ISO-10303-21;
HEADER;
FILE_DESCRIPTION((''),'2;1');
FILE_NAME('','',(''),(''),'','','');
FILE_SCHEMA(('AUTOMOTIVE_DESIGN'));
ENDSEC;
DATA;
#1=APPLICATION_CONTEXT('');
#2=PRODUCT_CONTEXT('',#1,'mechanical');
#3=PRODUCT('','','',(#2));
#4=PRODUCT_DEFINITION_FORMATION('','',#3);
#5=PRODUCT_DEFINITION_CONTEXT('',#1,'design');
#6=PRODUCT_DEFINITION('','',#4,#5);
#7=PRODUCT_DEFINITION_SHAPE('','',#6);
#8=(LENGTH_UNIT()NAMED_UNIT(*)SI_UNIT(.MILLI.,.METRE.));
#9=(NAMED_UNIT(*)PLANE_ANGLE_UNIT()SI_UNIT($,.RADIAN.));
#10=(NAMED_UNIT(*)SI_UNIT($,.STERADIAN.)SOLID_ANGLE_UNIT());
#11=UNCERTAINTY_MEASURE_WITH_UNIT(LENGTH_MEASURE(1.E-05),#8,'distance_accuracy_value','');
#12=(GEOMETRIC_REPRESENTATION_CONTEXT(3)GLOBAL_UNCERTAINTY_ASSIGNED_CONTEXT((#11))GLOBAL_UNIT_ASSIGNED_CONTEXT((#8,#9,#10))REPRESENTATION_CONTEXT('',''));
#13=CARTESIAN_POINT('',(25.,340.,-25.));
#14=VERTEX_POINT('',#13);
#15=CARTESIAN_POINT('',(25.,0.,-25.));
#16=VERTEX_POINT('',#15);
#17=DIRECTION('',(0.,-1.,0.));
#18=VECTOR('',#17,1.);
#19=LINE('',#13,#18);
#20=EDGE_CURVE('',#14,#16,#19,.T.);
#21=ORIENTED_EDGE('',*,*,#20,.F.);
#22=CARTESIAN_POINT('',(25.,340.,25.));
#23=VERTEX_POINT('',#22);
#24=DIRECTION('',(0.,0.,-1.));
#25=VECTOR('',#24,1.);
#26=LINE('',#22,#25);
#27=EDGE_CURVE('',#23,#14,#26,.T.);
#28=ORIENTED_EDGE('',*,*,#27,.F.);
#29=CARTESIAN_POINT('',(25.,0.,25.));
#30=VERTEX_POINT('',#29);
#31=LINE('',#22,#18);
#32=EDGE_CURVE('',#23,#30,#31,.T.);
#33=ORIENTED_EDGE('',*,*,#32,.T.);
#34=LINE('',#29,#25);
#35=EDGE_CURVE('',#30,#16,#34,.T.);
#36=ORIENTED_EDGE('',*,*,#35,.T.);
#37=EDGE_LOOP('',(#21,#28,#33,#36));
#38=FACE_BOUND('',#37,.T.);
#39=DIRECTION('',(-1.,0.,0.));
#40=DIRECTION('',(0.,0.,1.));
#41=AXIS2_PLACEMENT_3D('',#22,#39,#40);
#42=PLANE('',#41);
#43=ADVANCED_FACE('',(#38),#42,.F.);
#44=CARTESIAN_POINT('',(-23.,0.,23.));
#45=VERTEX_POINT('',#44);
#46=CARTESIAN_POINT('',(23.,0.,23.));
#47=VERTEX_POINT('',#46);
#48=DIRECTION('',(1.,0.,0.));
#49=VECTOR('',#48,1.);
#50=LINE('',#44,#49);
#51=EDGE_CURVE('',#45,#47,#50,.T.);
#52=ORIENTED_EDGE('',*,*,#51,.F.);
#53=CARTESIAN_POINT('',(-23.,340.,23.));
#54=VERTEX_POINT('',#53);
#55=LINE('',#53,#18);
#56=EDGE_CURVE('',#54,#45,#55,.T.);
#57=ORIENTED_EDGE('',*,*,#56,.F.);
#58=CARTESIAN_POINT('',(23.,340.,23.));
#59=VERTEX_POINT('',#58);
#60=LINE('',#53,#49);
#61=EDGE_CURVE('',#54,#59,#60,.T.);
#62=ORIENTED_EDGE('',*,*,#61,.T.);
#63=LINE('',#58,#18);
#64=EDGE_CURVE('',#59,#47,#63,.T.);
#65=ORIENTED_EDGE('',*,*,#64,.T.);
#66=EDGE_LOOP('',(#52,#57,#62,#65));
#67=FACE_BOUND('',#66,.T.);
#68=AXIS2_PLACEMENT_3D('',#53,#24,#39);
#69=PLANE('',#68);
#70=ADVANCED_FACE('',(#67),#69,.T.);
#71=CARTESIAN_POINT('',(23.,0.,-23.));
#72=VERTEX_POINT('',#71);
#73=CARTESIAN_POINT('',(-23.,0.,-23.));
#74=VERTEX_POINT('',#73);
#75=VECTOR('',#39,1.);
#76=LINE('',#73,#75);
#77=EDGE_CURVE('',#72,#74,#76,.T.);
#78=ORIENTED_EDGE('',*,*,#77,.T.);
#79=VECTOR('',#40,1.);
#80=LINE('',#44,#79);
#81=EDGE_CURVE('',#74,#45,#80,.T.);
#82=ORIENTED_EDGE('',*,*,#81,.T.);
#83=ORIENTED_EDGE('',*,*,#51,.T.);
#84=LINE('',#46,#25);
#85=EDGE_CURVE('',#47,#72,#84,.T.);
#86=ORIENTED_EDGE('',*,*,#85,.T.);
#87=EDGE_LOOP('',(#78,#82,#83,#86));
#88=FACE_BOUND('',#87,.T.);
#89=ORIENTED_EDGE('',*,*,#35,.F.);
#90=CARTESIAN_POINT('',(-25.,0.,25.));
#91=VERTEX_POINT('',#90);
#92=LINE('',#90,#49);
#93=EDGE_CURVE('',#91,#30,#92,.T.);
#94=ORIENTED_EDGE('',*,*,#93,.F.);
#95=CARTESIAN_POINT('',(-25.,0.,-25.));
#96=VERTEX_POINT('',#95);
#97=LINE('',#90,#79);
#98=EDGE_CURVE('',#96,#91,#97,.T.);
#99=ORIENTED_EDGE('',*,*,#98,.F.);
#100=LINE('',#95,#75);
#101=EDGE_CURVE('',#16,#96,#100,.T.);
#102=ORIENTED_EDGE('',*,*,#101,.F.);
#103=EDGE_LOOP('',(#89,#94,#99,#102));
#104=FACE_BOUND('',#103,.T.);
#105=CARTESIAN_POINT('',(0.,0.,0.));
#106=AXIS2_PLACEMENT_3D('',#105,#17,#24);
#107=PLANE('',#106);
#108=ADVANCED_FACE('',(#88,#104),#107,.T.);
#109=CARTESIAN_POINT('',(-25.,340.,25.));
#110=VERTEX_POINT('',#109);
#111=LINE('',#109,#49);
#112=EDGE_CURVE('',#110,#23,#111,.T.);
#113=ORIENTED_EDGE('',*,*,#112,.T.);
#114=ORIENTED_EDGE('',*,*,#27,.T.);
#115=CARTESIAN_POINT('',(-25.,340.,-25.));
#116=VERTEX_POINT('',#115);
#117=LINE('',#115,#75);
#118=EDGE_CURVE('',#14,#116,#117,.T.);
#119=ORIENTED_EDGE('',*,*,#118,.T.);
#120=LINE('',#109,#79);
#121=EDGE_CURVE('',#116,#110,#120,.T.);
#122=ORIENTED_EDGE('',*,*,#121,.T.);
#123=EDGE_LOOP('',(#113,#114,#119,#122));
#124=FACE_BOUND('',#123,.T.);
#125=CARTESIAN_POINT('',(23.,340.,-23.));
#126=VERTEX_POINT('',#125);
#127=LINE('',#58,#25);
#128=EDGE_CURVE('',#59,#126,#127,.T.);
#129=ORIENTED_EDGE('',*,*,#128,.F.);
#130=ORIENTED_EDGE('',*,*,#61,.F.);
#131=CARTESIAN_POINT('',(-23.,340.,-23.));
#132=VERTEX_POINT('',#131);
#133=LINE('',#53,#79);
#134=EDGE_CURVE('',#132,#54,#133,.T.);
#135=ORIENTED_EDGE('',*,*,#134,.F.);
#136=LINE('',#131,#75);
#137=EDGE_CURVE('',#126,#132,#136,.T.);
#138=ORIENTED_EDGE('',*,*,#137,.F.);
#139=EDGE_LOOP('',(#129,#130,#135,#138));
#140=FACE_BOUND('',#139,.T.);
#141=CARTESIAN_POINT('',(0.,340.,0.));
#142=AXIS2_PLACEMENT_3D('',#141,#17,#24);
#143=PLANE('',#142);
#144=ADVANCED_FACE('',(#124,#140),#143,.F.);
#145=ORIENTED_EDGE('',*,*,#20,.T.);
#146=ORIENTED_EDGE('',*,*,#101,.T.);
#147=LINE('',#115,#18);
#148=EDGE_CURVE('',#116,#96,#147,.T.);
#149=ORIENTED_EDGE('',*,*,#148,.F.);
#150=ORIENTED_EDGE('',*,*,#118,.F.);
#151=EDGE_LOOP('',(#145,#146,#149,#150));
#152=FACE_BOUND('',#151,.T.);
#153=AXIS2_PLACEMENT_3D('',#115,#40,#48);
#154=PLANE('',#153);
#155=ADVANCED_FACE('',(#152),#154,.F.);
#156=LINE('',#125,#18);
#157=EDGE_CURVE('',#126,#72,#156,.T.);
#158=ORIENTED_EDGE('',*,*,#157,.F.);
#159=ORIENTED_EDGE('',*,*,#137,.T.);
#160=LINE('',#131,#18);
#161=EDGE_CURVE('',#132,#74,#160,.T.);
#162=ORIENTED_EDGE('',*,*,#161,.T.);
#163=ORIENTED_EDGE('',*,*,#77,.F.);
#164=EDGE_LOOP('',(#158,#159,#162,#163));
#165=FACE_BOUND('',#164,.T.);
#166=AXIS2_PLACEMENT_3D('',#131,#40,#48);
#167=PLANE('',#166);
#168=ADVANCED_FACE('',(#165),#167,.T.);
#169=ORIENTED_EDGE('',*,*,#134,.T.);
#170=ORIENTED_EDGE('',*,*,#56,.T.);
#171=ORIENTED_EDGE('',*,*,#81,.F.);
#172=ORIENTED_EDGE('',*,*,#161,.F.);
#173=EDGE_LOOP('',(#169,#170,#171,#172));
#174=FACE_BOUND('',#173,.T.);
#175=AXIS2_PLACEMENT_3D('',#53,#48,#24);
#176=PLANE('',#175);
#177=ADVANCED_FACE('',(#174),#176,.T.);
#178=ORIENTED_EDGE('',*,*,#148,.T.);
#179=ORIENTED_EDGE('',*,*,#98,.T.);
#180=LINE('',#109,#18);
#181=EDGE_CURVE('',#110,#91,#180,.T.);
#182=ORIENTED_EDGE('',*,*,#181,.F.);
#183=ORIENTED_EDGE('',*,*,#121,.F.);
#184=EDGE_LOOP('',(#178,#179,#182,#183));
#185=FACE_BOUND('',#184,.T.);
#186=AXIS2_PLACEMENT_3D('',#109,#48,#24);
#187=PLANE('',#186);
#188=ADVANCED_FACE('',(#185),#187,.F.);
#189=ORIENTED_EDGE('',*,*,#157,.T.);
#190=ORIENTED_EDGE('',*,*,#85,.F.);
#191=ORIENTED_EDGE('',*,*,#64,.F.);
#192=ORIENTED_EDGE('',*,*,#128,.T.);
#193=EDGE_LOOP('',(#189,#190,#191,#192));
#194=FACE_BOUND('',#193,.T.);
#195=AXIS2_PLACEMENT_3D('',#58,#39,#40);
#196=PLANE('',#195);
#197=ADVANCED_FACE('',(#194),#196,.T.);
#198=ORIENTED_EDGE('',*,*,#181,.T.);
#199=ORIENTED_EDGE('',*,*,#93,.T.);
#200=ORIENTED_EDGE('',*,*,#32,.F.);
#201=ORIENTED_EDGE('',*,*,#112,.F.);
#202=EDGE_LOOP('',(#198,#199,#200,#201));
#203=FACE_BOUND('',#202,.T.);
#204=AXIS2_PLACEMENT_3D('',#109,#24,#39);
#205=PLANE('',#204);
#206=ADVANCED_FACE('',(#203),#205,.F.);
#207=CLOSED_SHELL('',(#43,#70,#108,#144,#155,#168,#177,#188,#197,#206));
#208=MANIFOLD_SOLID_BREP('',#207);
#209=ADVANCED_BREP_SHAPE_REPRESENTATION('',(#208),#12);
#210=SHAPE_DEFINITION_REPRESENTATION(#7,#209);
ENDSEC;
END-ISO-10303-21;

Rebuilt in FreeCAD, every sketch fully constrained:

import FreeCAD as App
import Part
import Sketcher

doc = App.newDocument("Part")
body = doc.addObject("PartDesign::Body", "Body")

# Sketch on XZ plane
sketch1 = body.newObject("Sketcher::SketchObject", "Sketch")
sketch1.AttachmentSupport = (doc.getObject("XZ_Plane"), [""])
sketch1.MapMode = "FlatFace"
sketch1.addGeometry(Part.LineSegment(App.Vector(-25, -25, 0), App.Vector(-25, 25, 0)), False)
sketch1.addGeometry(Part.LineSegment(App.Vector(-25, 25, 0), App.Vector(25, 25, 0)), False)
sketch1.addGeometry(Part.LineSegment(App.Vector(25, 25, 0), App.Vector(25, -25, 0)), False)
sketch1.addGeometry(Part.LineSegment(App.Vector(25, -25, 0), App.Vector(-25, -25, 0)), False)
sketch1.addGeometry(Part.LineSegment(App.Vector(23, 23, 0), App.Vector(-23, 23, 0)), False)
sketch1.addGeometry(Part.LineSegment(App.Vector(-23, 23, 0), App.Vector(-23, -23, 0)), False)
sketch1.addGeometry(Part.LineSegment(App.Vector(-23, -23, 0), App.Vector(23, -23, 0)), False)
sketch1.addGeometry(Part.LineSegment(App.Vector(23, -23, 0), App.Vector(23, 23, 0)), False)
sketch1.addConstraint(Sketcher.Constraint("Coincident", 0, 2, 1, 1))
sketch1.addConstraint(Sketcher.Constraint("Coincident", 1, 2, 2, 1))
sketch1.addConstraint(Sketcher.Constraint("Coincident", 2, 2, 3, 1))
sketch1.addConstraint(Sketcher.Constraint("Coincident", 3, 2, 0, 1))
sketch1.addConstraint(Sketcher.Constraint("Coincident", 4, 2, 5, 1))
sketch1.addConstraint(Sketcher.Constraint("Coincident", 5, 2, 6, 1))
sketch1.addConstraint(Sketcher.Constraint("Coincident", 6, 2, 7, 1))
sketch1.addConstraint(Sketcher.Constraint("Coincident", 7, 2, 4, 1))
sketch1.addConstraint(Sketcher.Constraint("Vertical", 0))
sketch1.addConstraint(Sketcher.Constraint("Horizontal", 1))
sketch1.addConstraint(Sketcher.Constraint("Vertical", 2))
sketch1.addConstraint(Sketcher.Constraint("Horizontal", 3))
sketch1.addConstraint(Sketcher.Constraint("Horizontal", 4))
sketch1.addConstraint(Sketcher.Constraint("Vertical", 5))
sketch1.addConstraint(Sketcher.Constraint("Horizontal", 6))
sketch1.addConstraint(Sketcher.Constraint("Vertical", 7))
sketch1.addConstraint(Sketcher.Constraint("Symmetric", 0, 2, 2, 2, -1, 1))
sketch1.addConstraint(Sketcher.Constraint("Symmetric", 4, 2, 6, 2, -1, 1))
sketch1.addConstraint(Sketcher.Constraint("Equal", 3, 0))
sketch1.addConstraint(Sketcher.Constraint("Equal", 6, 5))
sketch1.addConstraint(Sketcher.Constraint("DistanceX", 1, 1, 1, 2, 50.0))
sketch1.addConstraint(Sketcher.Constraint("DistanceX", 4, 2, 4, 1, 46.0))
pad1 = body.newObject("PartDesign::Pad", "Pad")
pad1.Profile = sketch1
pad1.Length = 340
pad1.Reversed = True

doc.recompute()
